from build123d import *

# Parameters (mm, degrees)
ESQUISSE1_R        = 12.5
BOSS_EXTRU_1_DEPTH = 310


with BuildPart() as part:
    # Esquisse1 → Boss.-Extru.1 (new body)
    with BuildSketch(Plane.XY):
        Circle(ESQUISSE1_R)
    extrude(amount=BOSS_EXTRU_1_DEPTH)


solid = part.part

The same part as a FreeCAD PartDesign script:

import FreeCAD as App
import Part
import Sketcher

doc = App.newDocument("Part")
body = doc.addObject("PartDesign::Body", "Body")

sketch1 = body.newObject("Sketcher::SketchObject", "Sketch")
sketch1.AttachmentSupport = (doc.getObject("XY_Plane"), [""])
sketch1.MapMode = "FlatFace"
sketch1.addGeometry(Part.Circle(App.Vector(0, 0, 0), App.Vector(0, 0, 1), 12), False)
sketch1.addConstraint([
    Sketcher.Constraint("Coincident", 0, 3, -1, 1),
    Sketcher.Constraint("Diameter", 0, 25.0),
])
pad1 = body.newObject("PartDesign::Pad", "Pad")
pad1.Profile = sketch1
pad1.Length = 310

doc.recompute()
